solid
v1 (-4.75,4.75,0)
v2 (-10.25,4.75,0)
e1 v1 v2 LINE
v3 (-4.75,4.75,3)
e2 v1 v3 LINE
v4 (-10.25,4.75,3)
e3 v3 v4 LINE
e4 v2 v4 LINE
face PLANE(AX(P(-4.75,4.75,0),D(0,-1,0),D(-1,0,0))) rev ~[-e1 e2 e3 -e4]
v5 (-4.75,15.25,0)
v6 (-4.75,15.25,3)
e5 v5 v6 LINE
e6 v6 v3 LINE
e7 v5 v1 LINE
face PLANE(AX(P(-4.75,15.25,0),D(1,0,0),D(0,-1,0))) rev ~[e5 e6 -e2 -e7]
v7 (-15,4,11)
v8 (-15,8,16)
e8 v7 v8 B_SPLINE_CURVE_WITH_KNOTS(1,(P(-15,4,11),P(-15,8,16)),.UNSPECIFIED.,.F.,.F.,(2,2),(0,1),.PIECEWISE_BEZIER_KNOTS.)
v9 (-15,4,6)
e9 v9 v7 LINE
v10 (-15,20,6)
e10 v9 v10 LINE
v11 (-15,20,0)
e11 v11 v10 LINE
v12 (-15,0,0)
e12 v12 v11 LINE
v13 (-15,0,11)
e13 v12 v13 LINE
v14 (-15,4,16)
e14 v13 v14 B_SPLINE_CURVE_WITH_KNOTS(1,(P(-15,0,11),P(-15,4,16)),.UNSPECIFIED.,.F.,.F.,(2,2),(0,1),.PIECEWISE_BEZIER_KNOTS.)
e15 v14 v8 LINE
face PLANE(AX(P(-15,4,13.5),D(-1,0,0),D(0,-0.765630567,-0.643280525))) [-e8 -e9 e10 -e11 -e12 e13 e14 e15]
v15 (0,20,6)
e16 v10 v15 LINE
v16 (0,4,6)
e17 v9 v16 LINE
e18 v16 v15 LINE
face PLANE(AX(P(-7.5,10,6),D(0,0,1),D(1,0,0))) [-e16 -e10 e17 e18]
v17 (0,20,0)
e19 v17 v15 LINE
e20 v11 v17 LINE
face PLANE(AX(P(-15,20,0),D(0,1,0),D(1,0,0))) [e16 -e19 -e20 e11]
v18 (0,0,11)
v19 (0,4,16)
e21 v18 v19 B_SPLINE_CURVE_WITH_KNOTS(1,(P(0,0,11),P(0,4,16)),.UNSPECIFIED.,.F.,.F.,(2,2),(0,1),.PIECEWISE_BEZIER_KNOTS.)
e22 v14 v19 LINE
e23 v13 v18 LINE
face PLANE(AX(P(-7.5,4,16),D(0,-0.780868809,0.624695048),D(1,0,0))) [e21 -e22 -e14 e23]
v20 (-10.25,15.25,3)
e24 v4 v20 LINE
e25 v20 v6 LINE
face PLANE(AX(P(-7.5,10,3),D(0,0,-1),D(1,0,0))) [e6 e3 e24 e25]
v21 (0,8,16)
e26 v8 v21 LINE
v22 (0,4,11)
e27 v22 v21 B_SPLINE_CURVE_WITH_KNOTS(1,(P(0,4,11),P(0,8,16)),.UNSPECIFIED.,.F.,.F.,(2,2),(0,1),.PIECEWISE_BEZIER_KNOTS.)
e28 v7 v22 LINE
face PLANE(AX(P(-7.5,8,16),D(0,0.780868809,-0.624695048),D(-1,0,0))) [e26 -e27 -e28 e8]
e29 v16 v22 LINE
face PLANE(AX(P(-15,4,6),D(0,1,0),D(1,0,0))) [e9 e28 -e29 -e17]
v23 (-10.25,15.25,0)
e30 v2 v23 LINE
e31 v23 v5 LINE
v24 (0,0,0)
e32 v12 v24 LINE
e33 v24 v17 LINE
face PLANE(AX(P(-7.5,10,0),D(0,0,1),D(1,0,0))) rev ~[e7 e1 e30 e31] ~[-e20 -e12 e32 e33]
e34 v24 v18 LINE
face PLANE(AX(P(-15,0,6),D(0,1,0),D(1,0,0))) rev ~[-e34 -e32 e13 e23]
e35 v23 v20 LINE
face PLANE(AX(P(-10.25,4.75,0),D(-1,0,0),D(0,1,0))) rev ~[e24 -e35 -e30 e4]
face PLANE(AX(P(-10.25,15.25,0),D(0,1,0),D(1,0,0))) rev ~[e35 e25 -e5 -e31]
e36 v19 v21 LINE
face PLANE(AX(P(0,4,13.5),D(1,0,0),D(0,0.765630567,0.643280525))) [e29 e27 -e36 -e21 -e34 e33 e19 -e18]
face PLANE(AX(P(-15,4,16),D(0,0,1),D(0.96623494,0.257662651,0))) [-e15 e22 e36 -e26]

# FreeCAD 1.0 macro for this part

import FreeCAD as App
import Part
import Sketcher

doc = App.newDocument("Part")
params = doc.addObject("Spreadsheet::Sheet", "Params")
for row, (alias, value) in enumerate([
    ("sketch1_width", "15 mm"),
    ("sketch1_height", "20 mm"),
    ("pad1_length", "6 mm"),
    ("sketch2_width", "5.5 mm"),
    ("sketch2_height", "10.5 mm"),
    ("pocket1_length", "3 mm"),
    ("sketch3_width", "15 mm"),
    ("sketch3_height", "4 mm"),
    ("pad2_length", "5 mm"),
    ("sketch4_width", "15 mm"),
    ("sketch4_height", "4 mm"),
    ("sketch5_width", "15 mm"),
    ("sketch5_height", "4 mm"),
], start=1):
    params.set(f"A{row}", alias)
    params.set(f"B{row}", "=" + value)
    params.setAlias(f"B{row}", alias)

body = doc.addObject("PartDesign::Body", "Body")

sketch1 = body.newObject("Sketcher::SketchObject", "Sketch")
sketch1.AttachmentSupport = (doc.getObject("XY_Plane"), [""])
sketch1.MapMode = "FlatFace"
sketch1.addGeometry(Part.LineSegment(App.Vector(-15, 20, 0), App.Vector(-15, 0, 0)), False)
sketch1.addGeometry(Part.LineSegment(App.Vector(-15, 0, 0), App.Vector(0, 0, 0)), False)
sketch1.addGeometry(Part.LineSegment(App.Vector(0, 0, 0), App.Vector(0, 20, 0)), False)
sketch1.addGeometry(Part.LineSegment(App.Vector(0, 20, 0), App.Vector(-15, 20, 0)), False)
sketch1.addConstraint(Sketcher.Constraint("Coincident", 0, 2, 1, 1))
sketch1.addConstraint(Sketcher.Constraint("Coincident", 1, 2, 2, 1))
sketch1.addConstraint(Sketcher.Constraint("Coincident", 2, 2, 3, 1))
sketch1.addConstraint(Sketcher.Constraint("Coincident", 3, 2, 0, 1))
sketch1.addConstraint(Sketcher.Constraint("Vertical", 0))
sketch1.addConstraint(Sketcher.Constraint("Horizontal", 1))
sketch1.addConstraint(Sketcher.Constraint("Vertical", 2))
sketch1.addConstraint(Sketcher.Constraint("Horizontal", 3))
sketch1.addConstraint(Sketcher.Constraint("Coincident", 1, 2, -1, 1))
sketch1.addConstraint(Sketcher.Constraint("DistanceX", 1, 1, 1, 2, 15.0))
sketch1.addConstraint(Sketcher.Constraint("DistanceY", 0, 2, 0, 1, 20.0))
sketch1.setExpression("Constraints[9]", "Params.sketch1_width")
sketch1.setExpression("Constraints[10]", "Params.sketch1_height")
pad1 = body.newObject("PartDesign::Pad", "Pad")
pad1.Profile = sketch1
pad1.setExpression("Length", "Params.pad1_length")

sketch2 = body.newObject("Sketcher::SketchObject", "Sketch001")
sketch2.AttachmentSupport = (doc.getObject("XY_Plane"), [""])
sketch2.MapMode = "FlatFace"
sketch2.addGeometry(Part.LineSegment(App.Vector(-5, 15, 0), App.Vector(-5, 5, 0)), False)
sketch2.addGeometry(Part.LineSegment(App.Vector(-5, 5, 0), App.Vector(-10, 5, 0)), False)
sketch2.addGeometry(Part.LineSegment(App.Vector(-10, 5, 0), App.Vector(-10, 15, 0)), False)
sketch2.addGeometry(Part.LineSegment(App.Vector(-10, 15, 0), App.Vector(-5, 15, 0)), False)
sketch2.addConstraint(Sketcher.Constraint("Coincident", 0, 2, 1, 1))
sketch2.addConstraint(Sketcher.Constraint("Coincident", 1, 2, 2, 1))
sketch2.addConstraint(Sketcher.Constraint("Coincident", 2, 2, 3, 1))
sketch2.addConstraint(Sketcher.Constraint("Coincident", 3, 2, 0, 1))
sketch2.addConstraint(Sketcher.Constraint("Vertical", 0))
sketch2.addConstraint(Sketcher.Constraint("Horizontal", 1))
sketch2.addConstraint(Sketcher.Constraint("Vertical", 2))
sketch2.addConstraint(Sketcher.Constraint("Horizontal", 3))
sketch2.addConstraint(Sketcher.Constraint("DistanceX", 1, 2, 1, 1, 5.5))
sketch2.addConstraint(Sketcher.Constraint("DistanceY", 0, 2, 0, 1, 10.5))
sketch2.addConstraint(Sketcher.Constraint("DistanceX", 0, 2, -1, 1, 4.75))
sketch2.addConstraint(Sketcher.Constraint("DistanceY", -1, 1, 0, 2, 4.75))
sketch2.setExpression("Constraints[8]", "Params.sketch2_width")
sketch2.setExpression("Constraints[9]", "Params.sketch2_height")
pocket1 = body.newObject("PartDesign::Pocket", "Pocket")
pocket1.Profile = sketch2
pocket1.setExpression("Length", "Params.pocket1_length")
pocket1.Reversed = True

sketch3 = body.newObject("Sketcher::SketchObject", "Sketch002")
sketch3.AttachmentSupport = (doc.getObject("XY_Plane"), [""])
sketch3.MapMode = "FlatFace"
sketch3.AttachmentOffset = App.Placement(App.Vector(0, 0, 6), App.Rotation())
sketch3.addGeometry(Part.LineSegment(App.Vector(-15, 4, 0), App.Vector(-15, 0, 0)), False)
sketch3.addGeometry(Part.LineSegment(App.Vector(-15, 0, 0), App.Vector(0, 0, 0)), False)
sketch3.addGeometry(Part.LineSegment(App.Vector(0, 0, 0), App.Vector(0, 4, 0)), False)
sketch3.addGeometry(Part.LineSegment(App.Vector(0, 4, 0), App.Vector(-15, 4, 0)), False)
sketch3.addConstraint(Sketcher.Constraint("Coincident", 0, 2, 1, 1))
sketch3.addConstraint(Sketcher.Constraint("Coincident", 1, 2, 2, 1))
sketch3.addConstraint(Sketcher.Constraint("Coincident", 2, 2, 3, 1))
sketch3.addConstraint(Sketcher.Constraint("Coincident", 3, 2, 0, 1))
sketch3.addConstraint(Sketcher.Constraint("Vertical", 0))
sketch3.addConstraint(Sketcher.Constraint("Horizontal", 1))
sketch3.addConstraint(Sketcher.Constraint("Vertical", 2))
sketch3.addConstraint(Sketcher.Constraint("Horizontal", 3))
sketch3.addConstraint(Sketcher.Constraint("Coincident", 1, 2, -1, 1))
sketch3.addConstraint(Sketcher.Constraint("DistanceX", 1, 1, 1, 2, 15.0))
sketch3.addConstraint(Sketcher.Constraint("DistanceY", 0, 2, 0, 1, 4.0))
sketch3.setExpression("Constraints[9]", "Params.sketch3_width")
sketch3.setExpression("Constraints[10]", "Params.sketch3_height")
pad2 = body.newObject("PartDesign::Pad", "Pad001")
pad2.Profile = sketch3
pad2.setExpression("Length", "Params.pad2_length")

sketch4 = body.newObject("Sketcher::SketchObject", "Sketch003")
sketch4.AttachmentSupport = (doc.getObject("XY_Plane"), [""])
sketch4.MapMode = "FlatFace"
sketch4.AttachmentOffset = App.Placement(App.Vector(0, 0, 11), App.Rotation())
sketch4.addGeometry(Part.LineSegment(App.Vector(-15, 4, 0), App.Vector(-15, 0, 0)), False)
sketch4.addGeometry(Part.LineSegment(App.Vector(-15, 0, 0), App.Vector(0, 0, 0)), False)
sketch4.addGeometry(Part.LineSegment(App.Vector(0, 0, 0), App.Vector(0, 4, 0)), False)
sketch4.addGeometry(Part.LineSegment(App.Vector(0, 4, 0), App.Vector(-15, 4, 0)), False)
sketch4.addConstraint(Sketcher.Constraint("Coincident", 0, 2, 1, 1))
sketch4.addConstraint(Sketcher.Constraint("Coincident", 1, 2, 2, 1))
sketch4.addConstraint(Sketcher.Constraint("Coincident", 2, 2, 3, 1))
sketch4.addConstraint(Sketcher.Constraint("Coincident", 3, 2, 0, 1))
sketch4.addConstraint(Sketcher.Constraint("Vertical", 0))
sketch4.addConstraint(Sketcher.Constraint("Horizontal", 1))
sketch4.addConstraint(Sketcher.Constraint("Vertical", 2))
sketch4.addConstraint(Sketcher.Constraint("Horizontal", 3))
sketch4.addConstraint(Sketcher.Constraint("Coincident", 1, 2, -1, 1))
sketch4.addConstraint(Sketcher.Constraint("DistanceX", 1, 1, 1, 2, 15.0))
sketch4.addConstraint(Sketcher.Constraint("DistanceY", 0, 2, 0, 1, 4.0))
sketch4.setExpression("Constraints[9]", "Params.sketch4_width")
sketch4.setExpression("Constraints[10]", "Params.sketch4_height")

sketch5 = body.newObject("Sketcher::SketchObject", "Sketch004")
sketch5.AttachmentSupport = (doc.getObject("XY_Plane"), [""])
sketch5.MapMode = "FlatFace"
sketch5.AttachmentOffset = App.Placement(App.Vector(0, 0, 16), App.Rotation())
sketch5.addGeometry(Part.LineSegment(App.Vector(-15, 8, 0), App.Vector(-15, 4, 0)), False)
sketch5.addGeometry(Part.LineSegment(App.Vector(-15, 4, 0), App.Vector(0, 4, 0)), False)
sketch5.addGeometry(Part.LineSegment(App.Vector(0, 4, 0), App.Vector(0, 8, 0)), False)
sketch5.addGeometry(Part.LineSegment(App.Vector(0, 8, 0), App.Vector(-15, 8, 0)), False)
sketch5.addConstraint(Sketcher.Constraint("Coincident", 0, 2, 1, 1))
sketch5.addConstraint(Sketcher.Constraint("Coincident", 1, 2, 2, 1))
sketch5.addConstraint(Sketcher.Constraint("Coincident", 2, 2, 3, 1))
sketch5.addConstraint(Sketcher.Constraint("Coincident", 3, 2, 0, 1))
sketch5.addConstraint(Sketcher.Constraint("Vertical", 0))
sketch5.addConstraint(Sketcher.Constraint("Horizontal", 1))
sketch5.addConstraint(Sketcher.Constraint("Vertical", 2))
sketch5.addConstraint(Sketcher.Constraint("Horizontal", 3))
sketch5.addConstraint(Sketcher.Constraint("PointOnObject", 1, 2, -2))
sketch5.addConstraint(Sketcher.Constraint("DistanceX", 1, 1, 1, 2, 15.0))
sketch5.addConstraint(Sketcher.Constraint("DistanceY", 0, 2, 0, 1, 4.0))
sketch5.addConstraint(Sketcher.Constraint("DistanceY", -1, 1, 0, 2, 4.0))
sketch5.setExpression("Constraints[9]", "Params.sketch5_width")
sketch5.setExpression("Constraints[10]", "Params.sketch5_height")

additiveloft = body.newObject("PartDesign::AdditiveLoft", "AdditiveLoft")
additiveloft.Profile = sketch4
additiveloft.Sections = [sketch5]

doc.recompute()
